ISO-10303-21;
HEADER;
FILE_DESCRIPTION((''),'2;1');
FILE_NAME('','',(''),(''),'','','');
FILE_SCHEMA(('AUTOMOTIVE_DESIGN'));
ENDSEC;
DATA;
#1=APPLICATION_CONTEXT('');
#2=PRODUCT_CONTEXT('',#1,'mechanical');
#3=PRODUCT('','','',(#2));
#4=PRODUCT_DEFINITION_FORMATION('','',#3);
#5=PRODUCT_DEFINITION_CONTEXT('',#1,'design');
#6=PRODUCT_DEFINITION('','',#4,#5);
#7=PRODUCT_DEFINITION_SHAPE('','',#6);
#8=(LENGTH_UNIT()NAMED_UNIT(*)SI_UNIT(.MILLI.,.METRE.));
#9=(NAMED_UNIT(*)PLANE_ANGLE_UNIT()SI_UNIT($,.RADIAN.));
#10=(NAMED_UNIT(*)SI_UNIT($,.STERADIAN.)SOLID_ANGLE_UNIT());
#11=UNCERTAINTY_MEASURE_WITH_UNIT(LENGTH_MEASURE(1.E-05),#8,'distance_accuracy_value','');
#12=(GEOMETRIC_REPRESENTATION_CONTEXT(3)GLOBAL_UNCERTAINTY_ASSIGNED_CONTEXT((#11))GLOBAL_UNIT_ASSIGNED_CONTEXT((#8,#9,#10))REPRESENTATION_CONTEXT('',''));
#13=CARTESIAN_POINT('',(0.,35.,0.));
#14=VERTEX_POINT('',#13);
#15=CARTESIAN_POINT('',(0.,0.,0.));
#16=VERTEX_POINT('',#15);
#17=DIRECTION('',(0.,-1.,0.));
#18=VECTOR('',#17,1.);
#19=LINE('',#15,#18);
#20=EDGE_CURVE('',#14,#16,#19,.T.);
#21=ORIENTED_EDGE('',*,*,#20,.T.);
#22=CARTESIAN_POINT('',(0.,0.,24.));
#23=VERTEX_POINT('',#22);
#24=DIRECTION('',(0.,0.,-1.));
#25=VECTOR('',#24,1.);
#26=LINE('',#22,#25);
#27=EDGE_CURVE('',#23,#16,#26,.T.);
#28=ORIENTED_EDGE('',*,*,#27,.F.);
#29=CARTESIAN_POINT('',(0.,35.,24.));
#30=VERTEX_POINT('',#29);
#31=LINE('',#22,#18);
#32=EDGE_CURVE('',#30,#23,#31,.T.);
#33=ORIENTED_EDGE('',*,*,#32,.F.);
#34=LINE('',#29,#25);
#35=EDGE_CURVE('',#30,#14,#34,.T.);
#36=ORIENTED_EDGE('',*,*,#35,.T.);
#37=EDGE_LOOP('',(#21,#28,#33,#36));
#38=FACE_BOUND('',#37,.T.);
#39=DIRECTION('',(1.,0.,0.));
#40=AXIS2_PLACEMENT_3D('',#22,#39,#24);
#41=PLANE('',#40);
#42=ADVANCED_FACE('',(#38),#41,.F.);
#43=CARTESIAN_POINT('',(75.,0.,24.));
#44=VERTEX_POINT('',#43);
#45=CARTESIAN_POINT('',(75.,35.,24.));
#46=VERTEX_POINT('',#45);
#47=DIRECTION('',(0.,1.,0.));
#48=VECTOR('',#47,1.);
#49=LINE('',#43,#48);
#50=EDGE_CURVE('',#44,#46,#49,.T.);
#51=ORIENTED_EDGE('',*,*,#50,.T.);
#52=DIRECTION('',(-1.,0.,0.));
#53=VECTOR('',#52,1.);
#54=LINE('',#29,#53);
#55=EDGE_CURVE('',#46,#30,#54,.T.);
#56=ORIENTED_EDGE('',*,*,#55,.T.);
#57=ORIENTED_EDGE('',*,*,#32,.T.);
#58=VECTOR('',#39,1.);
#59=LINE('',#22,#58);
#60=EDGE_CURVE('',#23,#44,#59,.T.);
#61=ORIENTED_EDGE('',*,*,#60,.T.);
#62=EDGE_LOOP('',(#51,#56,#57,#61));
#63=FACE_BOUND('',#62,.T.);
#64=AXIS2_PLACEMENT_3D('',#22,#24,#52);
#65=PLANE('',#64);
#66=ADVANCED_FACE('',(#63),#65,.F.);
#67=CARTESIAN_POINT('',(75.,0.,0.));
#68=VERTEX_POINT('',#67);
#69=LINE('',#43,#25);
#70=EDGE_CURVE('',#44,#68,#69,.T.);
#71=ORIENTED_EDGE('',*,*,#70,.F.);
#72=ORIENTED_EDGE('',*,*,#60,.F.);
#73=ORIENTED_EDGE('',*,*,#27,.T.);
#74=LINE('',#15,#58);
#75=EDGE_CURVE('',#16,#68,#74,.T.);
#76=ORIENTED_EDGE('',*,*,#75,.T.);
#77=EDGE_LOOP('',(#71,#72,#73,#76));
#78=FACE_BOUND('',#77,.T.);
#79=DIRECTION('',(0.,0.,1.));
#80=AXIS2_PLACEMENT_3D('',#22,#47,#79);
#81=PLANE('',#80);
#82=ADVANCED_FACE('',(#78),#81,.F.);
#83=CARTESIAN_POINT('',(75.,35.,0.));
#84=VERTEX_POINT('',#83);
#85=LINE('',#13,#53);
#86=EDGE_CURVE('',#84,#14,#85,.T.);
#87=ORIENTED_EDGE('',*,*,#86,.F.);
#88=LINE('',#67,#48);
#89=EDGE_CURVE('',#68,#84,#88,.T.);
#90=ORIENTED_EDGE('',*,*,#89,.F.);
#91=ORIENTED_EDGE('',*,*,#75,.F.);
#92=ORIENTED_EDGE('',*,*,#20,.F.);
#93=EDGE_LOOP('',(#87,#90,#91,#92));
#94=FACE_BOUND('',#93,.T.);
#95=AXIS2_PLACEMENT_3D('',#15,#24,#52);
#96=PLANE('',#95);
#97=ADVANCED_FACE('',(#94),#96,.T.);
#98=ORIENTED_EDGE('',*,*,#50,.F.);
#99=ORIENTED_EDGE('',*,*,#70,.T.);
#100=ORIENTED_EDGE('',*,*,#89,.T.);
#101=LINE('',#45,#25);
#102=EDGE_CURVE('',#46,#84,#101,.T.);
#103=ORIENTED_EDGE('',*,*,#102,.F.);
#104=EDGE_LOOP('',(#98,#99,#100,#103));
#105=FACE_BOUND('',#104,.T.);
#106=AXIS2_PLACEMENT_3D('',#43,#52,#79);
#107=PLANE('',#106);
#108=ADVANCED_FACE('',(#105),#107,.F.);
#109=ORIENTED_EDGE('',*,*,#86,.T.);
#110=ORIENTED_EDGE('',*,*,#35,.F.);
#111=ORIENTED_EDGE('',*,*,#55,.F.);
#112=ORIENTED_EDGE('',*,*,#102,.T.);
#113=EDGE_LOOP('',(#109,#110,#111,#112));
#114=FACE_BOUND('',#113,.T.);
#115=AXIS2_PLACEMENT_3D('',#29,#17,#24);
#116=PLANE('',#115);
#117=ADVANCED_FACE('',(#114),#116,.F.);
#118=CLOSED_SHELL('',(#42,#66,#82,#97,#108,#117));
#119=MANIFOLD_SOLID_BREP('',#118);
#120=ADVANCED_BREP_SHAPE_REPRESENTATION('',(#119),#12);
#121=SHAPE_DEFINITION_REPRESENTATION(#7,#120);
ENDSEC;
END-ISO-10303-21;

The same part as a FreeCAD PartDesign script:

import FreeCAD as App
import Part
import Sketcher
from FreeCAD import Vector

doc = App.newDocument("Part")
params = doc.addObject("Spreadsheet::Sheet", "Params")
for row, (alias, value) in enumerate([
    ("sketch1_width", "75 mm"),
    ("sketch1_height", "35 mm"),
    ("pad1_length", "24 mm"),
], start=1):
    params.set(f"A{row}", alias)
    params.set(f"B{row}", "=" + value)
    params.setAlias(f"B{row}", alias)

body = doc.addObject("PartDesign::Body", "Body")

# Sketch on XY plane
sketch1 = body.newObject("Sketcher::SketchObject", "Sketch")
sketch1.AttachmentSupport = (doc.getObject("XY_Plane"), [""])
sketch1.MapMode = "FlatFace"
sketch1.addGeometry([
    Part.LineSegment(Vector(0, 35, 0), Vector(0, 0, 0)),
    Part.LineSegment(Vector(0, 0, 0), Vector(75, 0, 0)),
    Part.LineSegment(Vector(75, 0, 0), Vector(75, 35, 0)),
    Part.LineSegment(Vector(75, 35, 0), Vector(0, 35, 0)),
], False)
sketch1.addConstraint([
    Sketcher.Constraint("Coincident", 0, 2, 1, 1),
    Sketcher.Constraint("Coincident", 1, 2, 2, 1),
    Sketcher.Constraint("Coincident", 2, 2, 3, 1),
    Sketcher.Constraint("Coincident", 3, 2, 0, 1),
    Sketcher.Constraint("Vertical", 0),
    Sketcher.Constraint("Horizontal", 1),
    Sketcher.Constraint("Vertical", 2),
    Sketcher.Constraint("Horizontal", 3),
    Sketcher.Constraint("Coincident", 0, 2, -1, 1),
    Sketcher.Constraint("DistanceX", 1, 1, 1, 2, 75.0),
    Sketcher.Constraint("DistanceY", 0, 2, 0, 1, 35.0),
])
sketch1.setExpression("Constraints[9]", "Params.sketch1_width")
sketch1.setExpression("Constraints[10]", "Params.sketch1_height")
pad1 = body.newObject("PartDesign::Pad", "Pad")
pad1.Profile = sketch1
pad1.setExpression("Length", "Params.pad1_length")

doc.recompute()
